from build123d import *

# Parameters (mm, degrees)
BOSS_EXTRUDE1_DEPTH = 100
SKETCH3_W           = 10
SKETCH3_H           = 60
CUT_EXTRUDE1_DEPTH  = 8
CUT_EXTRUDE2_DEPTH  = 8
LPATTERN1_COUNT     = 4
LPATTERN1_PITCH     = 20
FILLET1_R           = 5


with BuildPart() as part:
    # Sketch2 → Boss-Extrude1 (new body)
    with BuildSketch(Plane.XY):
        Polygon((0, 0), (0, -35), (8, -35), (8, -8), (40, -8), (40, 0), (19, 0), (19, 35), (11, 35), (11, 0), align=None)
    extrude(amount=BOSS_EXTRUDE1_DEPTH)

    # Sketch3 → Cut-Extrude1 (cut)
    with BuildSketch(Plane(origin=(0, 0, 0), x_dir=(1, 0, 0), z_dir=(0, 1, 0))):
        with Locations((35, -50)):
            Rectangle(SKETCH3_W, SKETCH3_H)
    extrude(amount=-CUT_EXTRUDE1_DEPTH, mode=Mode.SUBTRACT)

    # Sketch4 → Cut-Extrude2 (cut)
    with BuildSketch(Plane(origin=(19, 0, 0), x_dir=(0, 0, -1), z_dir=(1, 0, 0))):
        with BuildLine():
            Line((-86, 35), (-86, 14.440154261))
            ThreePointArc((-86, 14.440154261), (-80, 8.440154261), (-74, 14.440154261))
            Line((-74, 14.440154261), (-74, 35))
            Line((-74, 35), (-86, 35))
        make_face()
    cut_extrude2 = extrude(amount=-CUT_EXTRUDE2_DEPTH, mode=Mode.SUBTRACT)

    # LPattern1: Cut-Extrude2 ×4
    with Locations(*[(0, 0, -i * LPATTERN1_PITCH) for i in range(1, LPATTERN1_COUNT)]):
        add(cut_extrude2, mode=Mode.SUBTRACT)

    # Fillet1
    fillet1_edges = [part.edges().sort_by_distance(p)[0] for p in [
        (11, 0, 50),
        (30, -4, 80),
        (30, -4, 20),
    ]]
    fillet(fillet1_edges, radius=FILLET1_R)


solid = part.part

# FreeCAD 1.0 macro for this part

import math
import FreeCAD as App
import Part
import Sketcher
from FreeCAD import Vector
Q = App.Units.Quantity


def edges_at(feature, points):
    """Names of the edges that pass closest to the given points."""
    edges = feature.Shape.Edges
    near = lambda p: min(range(len(edges)), key=lambda i: edges[i].distToShape(Part.Vertex(*p))[0])
    return sorted({f"Edge{near(p) + 1}" for p in points})

doc = App.newDocument("Part")
params = doc.addObject("Spreadsheet::Sheet", "Params")
for row, (alias, value) in enumerate([
    ("sketch1_width", "8 mm"),
    ("sketch1_width2", "32 mm"),
    ("sketch1_width3", "21 mm"),
    ("sketch1_height", "35 mm"),
    ("pad1_length", "100 mm"),
    ("sketch2_width", "10 mm"),
    ("sketch2_height", "60 mm"),
    ("pocket1_length", "8 mm"),
    ("sketch3_radius", "6 mm"),
    ("pocket2_length", "8 mm"),
    ("linearpattern_pitch", "20 mm"),
    ("fillet_radius", "5 mm"),
], start=1):
    params.set(f"A{row}", alias)
    params.set(f"B{row}", "=" + value)
    params.setAlias(f"B{row}", alias)

body = doc.addObject("PartDesign::Body", "Body")

sketch1 = body.newObject("Sketcher::SketchObject", "Sketch")
sketch1.AttachmentSupport = (doc.getObject("XY_Plane"), [""])
sketch1.MapMode = "FlatFace"
sketch1.addGeometry(Part.LineSegment(Vector(0, 0, 0), Vector(0, -35, 0)), False)
sketch1.addGeometry(Part.LineSegment(Vector(0, -35, 0), Vector(8, -35, 0)), False)
sketch1.addGeometry(Part.LineSegment(Vector(8, -35, 0), Vector(8, -8, 0)), False)
sketch1.addGeometry(Part.LineSegment(Vector(8, -8, 0), Vector(40, -8, 0)), False)
sketch1.addGeometry(Part.LineSegment(Vector(40, -8, 0), Vector(40, 0, 0)), False)
sketch1.addGeometry(Part.LineSegment(Vector(40, 0, 0), Vector(19, 0, 0)), False)
sketch1.addGeometry(Part.LineSegment(Vector(19, 0, 0), Vector(19, 35, 0)), False)
sketch1.addGeometry(Part.LineSegment(Vector(19, 35, 0), Vector(11, 35, 0)), False)
sketch1.addGeometry(Part.LineSegment(Vector(11, 35, 0), Vector(11, 0, 0)), False)
sketch1.addGeometry(Part.LineSegment(Vector(11, 0, 0), Vector(0, 0, 0)), False)
sketch1.addConstraint(Sketcher.Constraint("Coincident", 0, 2, 1, 1))
sketch1.addConstraint(Sketcher.Constraint("Coincident", 1, 2, 2, 1))
sketch1.addConstraint(Sketcher.Constraint("Coincident", 2, 2, 3, 1))
sketch1.addConstraint(Sketcher.Constraint("Coincident", 3, 2, 4, 1))
sketch1.addConstraint(Sketcher.Constraint("Coincident", 4, 2, 5, 1))
sketch1.addConstraint(Sketcher.Constraint("Coincident", 5, 2, 6, 1))
sketch1.addConstraint(Sketcher.Constraint("Coincident", 6, 2, 7, 1))
sketch1.addConstraint(Sketcher.Constraint("Coincident", 7, 2, 8, 1))
sketch1.addConstraint(Sketcher.Constraint("Coincident", 8, 2, 9, 1))
sketch1.addConstraint(Sketcher.Constraint("Coincident", 9, 2, 0, 1))
sketch1.addConstraint(Sketcher.Constraint("Vertical", 0))
sketch1.addConstraint(Sketcher.Constraint("Horizontal", 1))
sketch1.addConstraint(Sketcher.Constraint("Vertical", 2))
sketch1.addConstraint(Sketcher.Constraint("Horizontal", 3))
sketch1.addConstraint(Sketcher.Constraint("Vertical", 4))
sketch1.addConstraint(Sketcher.Constraint("Horizontal", 5))
sketch1.addConstraint(Sketcher.Constraint("Vertical", 6))
sketch1.addConstraint(Sketcher.Constraint("Horizontal", 7))
sketch1.addConstraint(Sketcher.Constraint("Vertical", 8))
sketch1.addConstraint(Sketcher.Constraint("Horizontal", 9))
sketch1.addConstraint(Sketcher.Constraint("Coincident", 9, 2, -1, 1))
sketch1.addConstraint(Sketcher.Constraint("PointOnObject", 4, 2, -1))
sketch1.addConstraint(Sketcher.Constraint("Equal", 1, 7))
sketch1.addConstraint(Sketcher.Constraint("Equal", 7, 4))
sketch1.addConstraint(Sketcher.Constraint("Equal", 0, 6))
sketch1.addConstraint(Sketcher.Constraint("DistanceX", 1, 1, 1, 2, Q("8 mm")))
sketch1.addConstraint(Sketcher.Constraint("DistanceX", 3, 1, 3, 2, Q("32 mm")))
sketch1.addConstraint(Sketcher.Constraint("DistanceX", 5, 2, 5, 1, Q("21 mm")))
sketch1.addConstraint(Sketcher.Constraint("DistanceY", 0, 2, 0, 1, Q("35 mm")))
sketch1.setExpression("Constraints[25]", "Params.sketch1_width")
sketch1.setExpression("Constraints[26]", "Params.sketch1_width2")
sketch1.setExpression("Constraints[27]", "Params.sketch1_width3")
sketch1.setExpression("Constraints[28]", "Params.sketch1_height")
pad1 = body.newObject("PartDesign::Pad", "Pad")
pad1.Profile = sketch1
pad1.setExpression("Length", "Params.pad1_length")

sketch2 = body.newObject("Sketcher::SketchObject", "Sketch001")
sketch2.AttachmentSupport = (doc.getObject("XZ_Plane"), [""])
sketch2.MapMode = "FlatFace"
sketch2.addGeometry(Part.LineSegment(Vector(30, 20, 0), Vector(30, 80, 0)), False)
sketch2.addGeometry(Part.LineSegment(Vector(30, 80, 0), Vector(40, 80, 0)), False)
sketch2.addGeometry(Part.LineSegment(Vector(40, 80, 0), Vector(40, 20, 0)), False)
sketch2.addGeometry(Part.LineSegment(Vector(40, 20, 0), Vector(30, 20, 0)), False)
sketch2.addConstraint(Sketcher.Constraint("Coincident", 0, 2, 1, 1))
sketch2.addConstraint(Sketcher.Constraint("Coincident", 1, 2, 2, 1))
sketch2.addConstraint(Sketcher.Constraint("Coincident", 2, 2, 3, 1))
sketch2.addConstraint(Sketcher.Constraint("Coincident", 3, 2, 0, 1))
sketch2.addConstraint(Sketcher.Constraint("Vertical", 0))
sketch2.addConstraint(Sketcher.Constraint("Horizontal", 1))
sketch2.addConstraint(Sketcher.Constraint("Vertical", 2))
sketch2.addConstraint(Sketcher.Constraint("Horizontal", 3))
sketch2.addConstraint(Sketcher.Constraint("DistanceX", 1, 1, 1, 2, Q("10 mm")))
sketch2.addConstraint(Sketcher.Constraint("DistanceY", 0, 1, 0, 2, Q("60 mm")))
sketch2.addConstraint(Sketcher.Constraint("DistanceX", -1, 1, 0, 2, Q("30 mm")))
sketch2.addConstraint(Sketcher.Constraint("DistanceY", -1, 1, 0, 2, Q("80 mm")))
sketch2.setExpression("Constraints[8]", "Params.sketch2_width")
sketch2.setExpression("Constraints[9]", "Params.sketch2_height")
pocket1 = body.newObject("PartDesign::Pocket", "Pocket")
pocket1.Profile = sketch2
pocket1.setExpression("Length", "Params.pocket1_length")
pocket1.Reversed = True

sketch3 = body.newObject("Sketcher::SketchObject", "Sketch002")
sketch3.AttachmentSupport = (doc.getObject("YZ_Plane"), [""])
sketch3.MapMode = "FlatFace"
sketch3.AttachmentOffset = App.Placement(Vector(0, 0, 19), App.Rotation())
sketch3.addGeometry(Part.LineSegment(Vector(35, 86, 0), Vector(14, 86, 0)), False)
sketch3.addGeometry(Part.ArcOfCircle(Part.Circle(Vector(14, 80, 0), Vector(0, 0, 1), 6), math.radians(90), math.radians(270)), False)
sketch3.addGeometry(Part.LineSegment(Vector(14, 74, 0), Vector(35, 74, 0)), False)
sketch3.addGeometry(Part.LineSegment(Vector(35, 74, 0), Vector(35, 86, 0)), False)
sketch3.addConstraint(Sketcher.Constraint("Tangent", 0, 2, 1, 1))
sketch3.addConstraint(Sketcher.Constraint("Tangent", 1, 2, 2, 1))
sketch3.addConstraint(Sketcher.Constraint("Coincident", 2, 2, 3, 1))
sketch3.addConstraint(Sketcher.Constraint("Coincident", 3, 2, 0, 1))
sketch3.addConstraint(Sketcher.Constraint("Horizontal", 0))
sketch3.addConstraint(Sketcher.Constraint("Horizontal", 2))
sketch3.addConstraint(Sketcher.Constraint("Vertical", 3))
sketch3.addConstraint(Sketcher.Constraint("Radius", 1, Q("6 mm")))
sketch3.addConstraint(Sketcher.Constraint("DistanceY", -1, 1, 1, 3, Q("80 mm")))
sketch3.addConstraint(Sketcher.Constraint("DistanceX", -1, 1, 2, 2, Q("35 mm")))
sketch3.addConstraint(Sketcher.Constraint("DistanceX", 0, 2, 0, 1, Q("20.559846 mm")))
sketch3.setExpression("Constraints[7]", "Params.sketch3_radius")
pocket2 = body.newObject("PartDesign::Pocket", "Pocket001")
pocket2.Profile = sketch3
pocket2.setExpression("Length", "Params.pocket2_length")
doc.recompute()

linearpattern = body.newObject("PartDesign::LinearPattern", "LinearPattern")
linearpattern.Originals = [pocket2]
linearpattern.Direction = (doc.getObject("Z_Axis"), [""])
linearpattern.Mode = "offset"
linearpattern.setExpression("Offset", "Params.linearpattern_pitch")
linearpattern.Occurrences = 4
linearpattern.Reversed = True
body.Tip = linearpattern
doc.recompute()

fillet = body.newObject("PartDesign::Fillet", "Fillet")
fillet.Base = (linearpattern, edges_at(linearpattern, [(11, 0, 50), (30, -4, 80), (30, -4, 20)]))
fillet.setExpression("Radius", "Params.fillet_radius")

doc.recompute()
